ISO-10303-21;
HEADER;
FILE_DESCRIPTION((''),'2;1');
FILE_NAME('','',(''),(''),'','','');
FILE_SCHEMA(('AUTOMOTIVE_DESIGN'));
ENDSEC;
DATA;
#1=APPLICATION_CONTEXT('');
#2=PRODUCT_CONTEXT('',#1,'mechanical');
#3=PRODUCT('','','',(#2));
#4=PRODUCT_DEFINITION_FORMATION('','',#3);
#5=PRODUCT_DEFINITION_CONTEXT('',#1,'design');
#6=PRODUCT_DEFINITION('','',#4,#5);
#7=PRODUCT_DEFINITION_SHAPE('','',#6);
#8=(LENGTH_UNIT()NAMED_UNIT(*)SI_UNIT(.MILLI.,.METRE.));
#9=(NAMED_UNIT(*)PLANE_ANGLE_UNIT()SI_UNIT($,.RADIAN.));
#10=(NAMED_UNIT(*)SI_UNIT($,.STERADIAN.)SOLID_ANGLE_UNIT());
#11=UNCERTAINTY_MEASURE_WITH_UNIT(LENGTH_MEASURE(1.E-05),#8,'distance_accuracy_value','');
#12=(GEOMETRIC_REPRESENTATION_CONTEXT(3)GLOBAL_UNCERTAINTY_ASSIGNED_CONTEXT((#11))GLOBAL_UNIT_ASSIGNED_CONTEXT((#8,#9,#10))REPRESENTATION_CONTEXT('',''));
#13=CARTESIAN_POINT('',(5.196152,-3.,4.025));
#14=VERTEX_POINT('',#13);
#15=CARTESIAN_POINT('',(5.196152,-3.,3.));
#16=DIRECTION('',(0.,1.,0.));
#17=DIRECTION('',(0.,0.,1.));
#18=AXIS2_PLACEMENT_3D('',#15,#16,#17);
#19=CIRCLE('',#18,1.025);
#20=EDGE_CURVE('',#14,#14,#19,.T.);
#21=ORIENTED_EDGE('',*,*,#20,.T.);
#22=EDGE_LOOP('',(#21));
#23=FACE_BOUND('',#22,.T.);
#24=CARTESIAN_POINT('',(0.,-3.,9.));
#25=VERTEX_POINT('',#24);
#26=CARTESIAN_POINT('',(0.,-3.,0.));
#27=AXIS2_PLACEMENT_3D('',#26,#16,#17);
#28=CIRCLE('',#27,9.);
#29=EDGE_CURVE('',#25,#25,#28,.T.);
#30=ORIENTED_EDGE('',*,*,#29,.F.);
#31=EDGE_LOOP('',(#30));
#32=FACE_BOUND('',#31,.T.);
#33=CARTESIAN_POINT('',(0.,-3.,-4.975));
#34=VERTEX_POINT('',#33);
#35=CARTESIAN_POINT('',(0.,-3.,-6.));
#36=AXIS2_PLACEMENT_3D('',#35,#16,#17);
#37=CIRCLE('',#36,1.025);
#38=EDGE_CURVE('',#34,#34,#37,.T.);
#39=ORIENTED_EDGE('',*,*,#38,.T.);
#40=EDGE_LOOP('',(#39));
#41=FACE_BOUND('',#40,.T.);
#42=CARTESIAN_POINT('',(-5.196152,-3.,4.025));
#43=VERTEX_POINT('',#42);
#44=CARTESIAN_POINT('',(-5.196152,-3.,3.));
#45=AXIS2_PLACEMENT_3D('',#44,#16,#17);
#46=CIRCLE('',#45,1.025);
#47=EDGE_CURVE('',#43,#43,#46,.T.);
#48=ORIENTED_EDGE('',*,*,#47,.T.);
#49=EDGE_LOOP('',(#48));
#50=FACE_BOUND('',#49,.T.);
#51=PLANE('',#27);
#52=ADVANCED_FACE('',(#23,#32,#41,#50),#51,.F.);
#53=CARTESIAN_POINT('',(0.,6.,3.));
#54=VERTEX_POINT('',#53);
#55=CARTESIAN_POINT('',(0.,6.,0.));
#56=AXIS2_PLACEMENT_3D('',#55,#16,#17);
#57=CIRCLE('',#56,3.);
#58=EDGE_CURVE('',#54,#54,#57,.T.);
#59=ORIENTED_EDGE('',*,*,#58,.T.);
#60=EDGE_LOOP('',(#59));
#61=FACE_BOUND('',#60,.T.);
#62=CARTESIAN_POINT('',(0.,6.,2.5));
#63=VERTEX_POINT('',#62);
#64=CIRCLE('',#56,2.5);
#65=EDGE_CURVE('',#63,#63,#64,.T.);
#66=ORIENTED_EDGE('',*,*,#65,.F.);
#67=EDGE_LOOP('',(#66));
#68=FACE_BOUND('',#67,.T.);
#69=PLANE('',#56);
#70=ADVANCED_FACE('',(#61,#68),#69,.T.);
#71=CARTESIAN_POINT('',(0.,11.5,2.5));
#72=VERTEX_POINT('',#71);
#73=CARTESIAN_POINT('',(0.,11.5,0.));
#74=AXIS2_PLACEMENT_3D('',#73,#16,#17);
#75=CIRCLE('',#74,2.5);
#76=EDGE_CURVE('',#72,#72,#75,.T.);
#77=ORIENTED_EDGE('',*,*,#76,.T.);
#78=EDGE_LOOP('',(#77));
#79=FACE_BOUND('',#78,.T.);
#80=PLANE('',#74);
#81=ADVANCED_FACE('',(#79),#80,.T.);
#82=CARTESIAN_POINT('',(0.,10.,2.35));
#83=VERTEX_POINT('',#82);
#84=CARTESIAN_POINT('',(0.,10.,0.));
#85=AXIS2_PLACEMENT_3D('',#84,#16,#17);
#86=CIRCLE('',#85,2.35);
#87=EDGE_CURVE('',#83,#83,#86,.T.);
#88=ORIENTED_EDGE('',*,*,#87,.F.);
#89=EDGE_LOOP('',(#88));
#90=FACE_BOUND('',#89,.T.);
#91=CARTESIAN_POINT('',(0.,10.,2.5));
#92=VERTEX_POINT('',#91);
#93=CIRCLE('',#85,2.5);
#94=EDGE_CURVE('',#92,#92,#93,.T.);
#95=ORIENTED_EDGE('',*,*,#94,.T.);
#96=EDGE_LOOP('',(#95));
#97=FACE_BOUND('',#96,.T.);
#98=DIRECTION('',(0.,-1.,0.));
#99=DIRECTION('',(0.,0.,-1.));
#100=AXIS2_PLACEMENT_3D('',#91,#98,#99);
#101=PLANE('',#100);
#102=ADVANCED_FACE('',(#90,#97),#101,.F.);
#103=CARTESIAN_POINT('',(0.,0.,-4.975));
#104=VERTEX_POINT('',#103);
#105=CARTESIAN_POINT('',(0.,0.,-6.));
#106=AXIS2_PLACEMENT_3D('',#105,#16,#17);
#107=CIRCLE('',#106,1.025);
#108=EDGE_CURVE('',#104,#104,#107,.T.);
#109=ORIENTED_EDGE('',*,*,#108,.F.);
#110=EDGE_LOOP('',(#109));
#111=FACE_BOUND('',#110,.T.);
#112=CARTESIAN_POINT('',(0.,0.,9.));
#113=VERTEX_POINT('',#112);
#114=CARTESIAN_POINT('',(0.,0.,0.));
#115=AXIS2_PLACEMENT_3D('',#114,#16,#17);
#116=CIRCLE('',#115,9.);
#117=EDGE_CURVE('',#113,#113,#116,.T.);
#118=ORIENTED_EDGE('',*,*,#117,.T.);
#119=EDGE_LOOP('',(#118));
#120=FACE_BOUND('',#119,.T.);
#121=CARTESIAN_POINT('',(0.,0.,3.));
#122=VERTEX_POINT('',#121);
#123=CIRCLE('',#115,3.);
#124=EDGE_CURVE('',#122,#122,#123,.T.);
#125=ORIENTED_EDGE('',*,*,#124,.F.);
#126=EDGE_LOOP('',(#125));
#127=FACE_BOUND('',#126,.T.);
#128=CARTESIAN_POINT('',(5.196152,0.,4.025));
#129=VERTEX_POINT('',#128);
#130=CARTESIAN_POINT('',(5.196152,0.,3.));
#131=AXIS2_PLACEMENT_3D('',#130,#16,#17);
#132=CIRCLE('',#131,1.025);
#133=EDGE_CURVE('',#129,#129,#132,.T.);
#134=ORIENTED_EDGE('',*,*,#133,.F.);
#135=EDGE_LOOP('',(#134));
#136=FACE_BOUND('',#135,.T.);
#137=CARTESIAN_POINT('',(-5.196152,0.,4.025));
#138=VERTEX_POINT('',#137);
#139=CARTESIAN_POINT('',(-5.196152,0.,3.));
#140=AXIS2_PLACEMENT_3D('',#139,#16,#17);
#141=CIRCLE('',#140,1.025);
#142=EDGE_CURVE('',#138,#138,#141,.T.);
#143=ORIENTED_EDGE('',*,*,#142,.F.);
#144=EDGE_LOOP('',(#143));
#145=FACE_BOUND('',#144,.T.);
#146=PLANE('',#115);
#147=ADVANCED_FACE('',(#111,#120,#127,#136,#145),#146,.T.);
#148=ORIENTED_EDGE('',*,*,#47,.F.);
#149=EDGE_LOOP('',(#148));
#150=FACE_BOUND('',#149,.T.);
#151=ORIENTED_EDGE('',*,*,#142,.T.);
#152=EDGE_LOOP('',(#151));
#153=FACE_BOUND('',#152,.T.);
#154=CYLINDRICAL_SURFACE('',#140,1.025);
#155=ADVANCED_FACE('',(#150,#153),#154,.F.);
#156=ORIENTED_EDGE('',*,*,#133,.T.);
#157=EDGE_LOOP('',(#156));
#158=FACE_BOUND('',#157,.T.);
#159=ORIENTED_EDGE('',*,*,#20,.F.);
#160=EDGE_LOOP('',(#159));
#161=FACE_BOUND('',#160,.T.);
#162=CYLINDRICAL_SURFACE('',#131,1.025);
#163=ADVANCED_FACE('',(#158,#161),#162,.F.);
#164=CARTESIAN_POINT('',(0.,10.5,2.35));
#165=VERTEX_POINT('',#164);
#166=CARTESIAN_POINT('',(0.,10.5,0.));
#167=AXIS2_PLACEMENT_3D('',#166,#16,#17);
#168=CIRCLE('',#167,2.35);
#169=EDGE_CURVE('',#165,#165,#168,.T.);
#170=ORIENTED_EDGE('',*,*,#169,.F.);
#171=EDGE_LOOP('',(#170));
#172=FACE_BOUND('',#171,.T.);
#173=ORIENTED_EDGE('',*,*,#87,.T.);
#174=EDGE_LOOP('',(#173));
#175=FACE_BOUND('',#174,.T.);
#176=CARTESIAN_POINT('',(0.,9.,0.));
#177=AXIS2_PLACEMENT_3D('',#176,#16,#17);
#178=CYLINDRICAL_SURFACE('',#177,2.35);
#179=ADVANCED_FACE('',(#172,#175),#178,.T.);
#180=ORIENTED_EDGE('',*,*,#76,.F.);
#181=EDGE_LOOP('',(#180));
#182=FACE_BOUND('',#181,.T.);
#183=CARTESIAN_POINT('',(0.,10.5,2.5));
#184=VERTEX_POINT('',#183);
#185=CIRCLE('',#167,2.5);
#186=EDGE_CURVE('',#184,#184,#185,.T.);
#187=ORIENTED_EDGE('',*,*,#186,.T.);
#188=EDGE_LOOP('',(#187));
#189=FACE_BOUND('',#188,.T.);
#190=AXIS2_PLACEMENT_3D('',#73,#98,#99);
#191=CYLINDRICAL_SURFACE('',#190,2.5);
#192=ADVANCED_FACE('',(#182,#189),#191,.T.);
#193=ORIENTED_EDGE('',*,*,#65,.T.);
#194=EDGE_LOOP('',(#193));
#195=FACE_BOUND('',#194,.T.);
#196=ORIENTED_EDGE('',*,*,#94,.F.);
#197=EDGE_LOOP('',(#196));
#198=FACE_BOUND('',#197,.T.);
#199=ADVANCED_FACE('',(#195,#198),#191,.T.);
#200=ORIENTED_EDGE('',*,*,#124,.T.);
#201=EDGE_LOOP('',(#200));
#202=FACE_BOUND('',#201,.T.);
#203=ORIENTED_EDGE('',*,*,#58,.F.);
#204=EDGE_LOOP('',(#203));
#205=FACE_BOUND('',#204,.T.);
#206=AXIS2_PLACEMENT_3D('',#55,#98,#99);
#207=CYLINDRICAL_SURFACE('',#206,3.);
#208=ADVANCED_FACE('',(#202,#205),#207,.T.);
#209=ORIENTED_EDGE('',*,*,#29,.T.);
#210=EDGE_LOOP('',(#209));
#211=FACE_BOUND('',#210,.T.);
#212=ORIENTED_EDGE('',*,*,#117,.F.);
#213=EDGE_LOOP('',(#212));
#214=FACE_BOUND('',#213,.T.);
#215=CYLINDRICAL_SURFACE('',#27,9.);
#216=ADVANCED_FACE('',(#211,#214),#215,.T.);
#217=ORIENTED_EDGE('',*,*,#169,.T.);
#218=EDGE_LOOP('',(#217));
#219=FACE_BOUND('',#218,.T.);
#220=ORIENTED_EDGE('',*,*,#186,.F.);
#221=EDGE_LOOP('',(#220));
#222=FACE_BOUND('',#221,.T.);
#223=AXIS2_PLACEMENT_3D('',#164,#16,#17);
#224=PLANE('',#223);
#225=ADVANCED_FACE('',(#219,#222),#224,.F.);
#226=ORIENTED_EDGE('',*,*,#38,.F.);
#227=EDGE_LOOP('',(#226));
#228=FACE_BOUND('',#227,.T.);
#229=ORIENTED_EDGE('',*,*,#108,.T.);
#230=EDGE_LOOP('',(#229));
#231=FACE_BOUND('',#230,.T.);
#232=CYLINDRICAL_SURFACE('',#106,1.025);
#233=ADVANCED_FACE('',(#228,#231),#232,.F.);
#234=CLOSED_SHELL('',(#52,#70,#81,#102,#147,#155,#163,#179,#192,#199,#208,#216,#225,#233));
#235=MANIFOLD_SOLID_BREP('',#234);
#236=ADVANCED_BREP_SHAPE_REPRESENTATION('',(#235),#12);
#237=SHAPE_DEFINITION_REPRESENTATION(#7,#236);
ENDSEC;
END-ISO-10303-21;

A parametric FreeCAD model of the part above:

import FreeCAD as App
import Part
import Sketcher

V = App.Vector
Q = App.Units.Quantity


def add_polygon(sketch, points):
    """Adds a closed chain of lines whose ends are joined by coincident constraints."""
    first, n = sketch.GeometryCount, len(points)
    for a, b in zip(points, points[1:] + points[:1]):
        sketch.addGeometry(Part.LineSegment(App.Vector(*a, 0), App.Vector(*b, 0)), False)
    for i in range(n):
        sketch.addConstraint(Sketcher.Constraint("Coincident", first + i, 2, first + (i + 1) % n, 1))

doc = App.newDocument("Part")
body = doc.addObject("PartDesign::Body", "Body")

# Sketch on XZ plane
sketch1 = doc.addObject("Sketcher::SketchObject", "Sketch")
body.addObject(sketch1)
sketch1.AttachmentSupport = (doc.XZ_Plane, [""])
sketch1.MapMode = "FlatFace"
sketch1.addGeometry([
    Part.Circle(V(0, 0, 0), V(0, 0, 1), 3),
    Part.Circle(V(0, 0, 0), V(0, 0, 1), 2.5),
], False)
sketch1.addConstraint([
    Sketcher.Constraint("Coincident", 0, 3, -1, 1),
    Sketcher.Constraint("Coincident", 1, 3, -1, 1),
    Sketcher.Constraint("Diameter", 0, Q("6 mm")),
    Sketcher.Constraint("Diameter", 1, Q("5 mm")),
])
pad1 = doc.addObject("PartDesign::Pad", "Pad")
body.addObject(pad1)
pad1.Profile = sketch1
pad1.Length = 6
pad1.Reversed = True

# Sketch on XZ plane
sketch2 = doc.addObject("Sketcher::SketchObject", "Sketch001")
body.addObject(sketch2)
sketch2.AttachmentSupport = (doc.XZ_Plane, [""])
sketch2.MapMode = "FlatFace"
sketch2.addGeometry(Part.Circle(V(0, 0, 0), V(0, 0, 1), 2.5), False)
sketch2.addConstraint([
    Sketcher.Constraint("Coincident", 0, 3, -1, 1),
    Sketcher.Constraint("Diameter", 0, Q("5 mm")),
])
pad2 = doc.addObject("PartDesign::Pad", "Pad001")
body.addObject(pad2)
pad2.Profile = sketch2
pad2.Length = 11.5
pad2.Reversed = True

# Sketch on XZ plane
sketch3 = doc.addObject("Sketcher::SketchObject", "Sketch002")
body.addObject(sketch3)
sketch3.AttachmentSupport = (doc.XZ_Plane, [""])
sketch3.MapMode = "FlatFace"
sketch3.addGeometry(Part.Circle(V(0, 0, 0), V(0, 0, 1), 9), False)
sketch3.addConstraint([
    Sketcher.Constraint("Coincident", 0, 3, -1, 1),
    Sketcher.Constraint("Diameter", 0, Q("18 mm")),
])
pad3 = doc.addObject("PartDesign::Pad", "Pad002")
body.addObject(pad3)
pad3.Profile = sketch3
pad3.Length = 3

# Sketch on YZ plane
sketch4 = doc.addObject("Sketcher::SketchObject", "Sketch003")
body.addObject(sketch4)
sketch4.AttachmentSupport = (doc.YZ_Plane, [""])
sketch4.MapMode = "FlatFace"
add_polygon(sketch4, [(10.5, 2.5), (10, 2.5), (10, 2.35), (10.5, 2.35)])  # lines 0-3
sketch4.addConstraint([
    Sketcher.Constraint("Horizontal", 0),
    Sketcher.Constraint("Vertical", 1),
    Sketcher.Constraint("Horizontal", 2),
    Sketcher.Constraint("Vertical", 3),
    Sketcher.Constraint("DistanceX", 0, 2, 0, 1, Q("0.5 mm")),
    Sketcher.Constraint("DistanceX", -1, 1, 0, 2, Q("10 mm")),
    Sketcher.Constraint("DistanceY", 1, 2, 1, 1, Q("0.15 mm")),
    Sketcher.Constraint("DistanceY", -1, 1, 0, 2, Q("2.5 mm")),
])
groove = doc.addObject("PartDesign::Groove", "Groove")
body.addObject(groove)
groove.Profile = sketch4
groove.ReferenceAxis = (sketch4, ["H_Axis"])
groove.Angle = 360

# Sketch on XZ plane
sketch5 = doc.addObject("Sketcher::SketchObject", "Sketch004")
body.addObject(sketch5)
sketch5.AttachmentSupport = (doc.XZ_Plane, [""])
sketch5.MapMode = "FlatFace"
sketch5.addGeometry([
    Part.Circle(V(-5.2, 3, 0), V(0, 0, 1), 1),
    Part.Circle(V(0, -6, 0), V(0, 0, 1), 1),
    Part.Circle(V(5.2, 3, 0), V(0, 0, 1), 1),
], False)
sketch5.addConstraint([
    Sketcher.Constraint("Equal", 0, 1),
    Sketcher.Constraint("Equal", 1, 2),
    Sketcher.Constraint("Symmetric", 0, 3, 2, 3, -2),
    Sketcher.Constraint("PointOnObject", 1, 3, -2),
    Sketcher.Constraint("Diameter", 0, Q("2.05 mm")),
    Sketcher.Constraint("DistanceY", -1, 1, 0, 3, Q("3 mm")),
    Sketcher.Constraint("DistanceY", 1, 3, -1, 1, Q("6 mm")),
    Sketcher.Constraint("DistanceX", 0, 3, -1, 1, Q("5.196152 mm")),
])
doc.recompute()
hole = doc.addObject("PartDesign::Hole", "Hole")
body.addObject(hole)
hole.Profile = sketch5
hole.ThreadType = "None"
hole.Diameter = 2.05
hole.DepthType = "ThroughAll"
hole.Reversed = True

doc.recompute()
